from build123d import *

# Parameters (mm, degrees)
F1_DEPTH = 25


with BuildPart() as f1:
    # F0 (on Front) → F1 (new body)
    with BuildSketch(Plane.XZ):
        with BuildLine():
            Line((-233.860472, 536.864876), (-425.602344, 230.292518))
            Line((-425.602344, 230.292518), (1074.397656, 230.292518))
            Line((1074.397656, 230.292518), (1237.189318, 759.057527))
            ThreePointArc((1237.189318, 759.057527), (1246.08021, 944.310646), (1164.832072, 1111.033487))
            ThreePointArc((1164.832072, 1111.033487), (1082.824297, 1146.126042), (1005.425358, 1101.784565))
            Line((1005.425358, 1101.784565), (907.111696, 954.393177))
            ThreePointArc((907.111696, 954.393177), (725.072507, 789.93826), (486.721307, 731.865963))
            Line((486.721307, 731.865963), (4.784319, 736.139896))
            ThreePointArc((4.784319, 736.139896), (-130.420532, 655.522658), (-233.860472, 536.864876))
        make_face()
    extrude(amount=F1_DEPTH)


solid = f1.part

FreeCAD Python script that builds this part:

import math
import FreeCAD as App
import Part
import Sketcher

doc = App.newDocument("Part")
params = doc.addObject("Spreadsheet::Sheet", "Params")
for row, (alias, value) in enumerate([
    ("sketch1_radius", "100.000001 mm"),
    ("sketch1_radius2", "499.999998 mm"),
    ("sketch1_width", "1500 mm"),
    ("pad1_length", "25 mm"),
], start=1):
    params.set(f"A{row}", alias)
    params.set(f"B{row}", "=" + value)
    params.setAlias(f"B{row}", alias)

body = doc.addObject("PartDesign::Body", "Body")

# Sketch on XZ plane
sketch1 = body.newObject("Sketcher::SketchObject", "Sketch")
sketch1.AttachmentSupport = (doc.getObject("XZ_Plane"), [""])
sketch1.MapMode = "FlatFace"
sketch1.addGeometry(Part.LineSegment(App.Vector(-233.860472, 536.864876, 0), App.Vector(-425.602344, 230.292518, 0)), False)
sketch1.addGeometry(Part.LineSegment(App.Vector(-425.602344, 230.292518, 0), App.Vector(1074.397656, 230.292518, 0)), False)
sketch1.addGeometry(Part.LineSegment(App.Vector(1074.397656, 230.292518, 0), App.Vector(1237.189318, 759.057527, 0)), False)
sketch1.addGeometry(Part.ArcOfCircle(Part.Circle(App.Vector(879.945471, 869.042717, 0), App.Vector(0, 0, 1), 373.791263), math.radians(-17.112106), math.radians(40.345518)), False)
sketch1.addGeometry(Part.ArcOfCircle(Part.Circle(App.Vector(1088.616647, 1046.293939, 0), App.Vector(0, 0, 1), 100.000001), math.radians(40.345519), math.radians(146.295742)), False)
sketch1.addGeometry(Part.LineSegment(App.Vector(1005.425358, 1101.784565, 0), App.Vector(907.111696, 954.393177, 0)), False)
sketch1.addGeometry(Part.ArcOfCircle(Part.Circle(App.Vector(491.155253, 1231.846301, 0), App.Vector(0, 0, 1), 499.999998), math.radians(-90.508099), math.radians(-33.704258)), False)
sketch1.addGeometry(Part.LineSegment(App.Vector(486.721307, 731.865963, 0), App.Vector(4.784319, 736.139896, 0)), False)
sketch1.addGeometry(Part.ArcOfCircle(Part.Circle(App.Vector(190.055294, 271.732024, 0), App.Vector(0, 0, 1), 500.000006), math.radians(111.749044), math.radians(147.976591)), False)
sketch1.addConstraint(Sketcher.Constraint("Coincident", 0, 2, 1, 1))
sketch1.addConstraint(Sketcher.Constraint("Coincident", 1, 2, 2, 1))
sketch1.addConstraint(Sketcher.Constraint("Tangent", 2, 2, 3, 1))
sketch1.addConstraint(Sketcher.Constraint("Tangent", 3, 2, 4, 1))
sketch1.addConstraint(Sketcher.Constraint("Tangent", 4, 2, 5, 1))
sketch1.addConstraint(Sketcher.Constraint("Tangent", 5, 2, 6, 2))
sketch1.addConstraint(Sketcher.Constraint("Tangent", 6, 1, 7, 1))
sketch1.addConstraint(Sketcher.Constraint("Coincident", 7, 2, 8, 1))
sketch1.addConstraint(Sketcher.Constraint("Tangent", 8, 2, 0, 1))
sketch1.addConstraint(Sketcher.Constraint("Horizontal", 1))
sketch1.addConstraint(Sketcher.Constraint("Radius", 4, 100.000001))
sketch1.addConstraint(Sketcher.Constraint("Radius", 6, 499.999998))
sketch1.addConstraint(Sketcher.Constraint("DistanceX", 1, 1, 1, 2, 1500.0))
sketch1.addConstraint(Sketcher.Constraint("Radius", 3, 373.791263))
sketch1.addConstraint(Sketcher.Constraint("Radius", 8, 500.000006))
sketch1.addConstraint(Sketcher.Constraint("DistanceY", -1, 1, 6, 3, 1231.846301))
sketch1.addConstraint(Sketcher.Constraint("DistanceY", 0, 2, 3, 3, 638.750199))
sketch1.addConstraint(Sketcher.Constraint("DistanceX", 3, 3, 3, 2, 284.886601))
sketch1.addConstraint(Sketcher.Constraint("Distance", 5, 177.171661))
sketch1.addConstraint(Sketcher.Constraint("Distance", 7, 481.955939))
sketch1.addConstraint(Sketcher.Constraint("DistanceX", -1, 1, 3, 3, 879.945471))
sketch1.addConstraint(Sketcher.Constraint("DistanceY", -1, 1, 4, 3, 1046.293939))
sketch1.addConstraint(Sketcher.Constraint("DistanceX", -1, 1, 2, 2, 1237.189318))
sketch1.addConstraint(Sketcher.Constraint("DistanceX", -1, 1, 7, 2, 4.784319))
sketch1.addConstraint(Sketcher.Constraint("DistanceX", 8, 3, 6, 3, 301.099959))
sketch1.setExpression("Constraints[10]", "Params.sketch1_radius")
sketch1.setExpression("Constraints[11]", "Params.sketch1_radius2")
sketch1.setExpression("Constraints[12]", "Params.sketch1_width")
pad1 = body.newObject("PartDesign::Pad", "Pad")
pad1.Profile = sketch1
pad1.setExpression("Length", "Params.pad1_length")

doc.recompute()
